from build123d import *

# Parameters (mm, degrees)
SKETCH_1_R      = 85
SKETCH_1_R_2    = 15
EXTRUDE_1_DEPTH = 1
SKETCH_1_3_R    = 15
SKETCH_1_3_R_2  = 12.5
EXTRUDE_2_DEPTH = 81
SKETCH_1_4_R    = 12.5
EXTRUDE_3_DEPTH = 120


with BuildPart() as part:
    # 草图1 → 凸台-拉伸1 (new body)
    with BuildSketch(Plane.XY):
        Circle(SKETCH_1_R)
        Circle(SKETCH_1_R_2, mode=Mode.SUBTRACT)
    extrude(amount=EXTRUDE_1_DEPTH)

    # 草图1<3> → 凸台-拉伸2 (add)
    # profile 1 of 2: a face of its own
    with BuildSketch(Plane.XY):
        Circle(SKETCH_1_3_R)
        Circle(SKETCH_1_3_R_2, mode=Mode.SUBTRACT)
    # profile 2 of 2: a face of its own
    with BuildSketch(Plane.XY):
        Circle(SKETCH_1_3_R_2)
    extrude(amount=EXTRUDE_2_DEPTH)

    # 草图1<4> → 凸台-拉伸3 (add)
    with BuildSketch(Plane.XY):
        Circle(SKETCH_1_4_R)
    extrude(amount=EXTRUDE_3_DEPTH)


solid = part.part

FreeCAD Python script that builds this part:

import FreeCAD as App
import Part
import Sketcher

V = App.Vector
Q = App.Units.Quantity

doc = App.newDocument("Part")
body = doc.addObject("PartDesign::Body", "Body")

# Sketch on XY plane
sketch1 = body.newObject("Sketcher::SketchObject", "Sketch")
sketch1.AttachmentSupport = (doc.getObject("XY_Plane"), [""])
sketch1.MapMode = "FlatFace"
sketch1.addGeometry([
    Part.Circle(V(0, 0, 0), V(0, 0, 1), 85),
    Part.Circle(V(0, 0, 0), V(0, 0, 1), 15),
], False)
sketch1.addConstraint([
    Sketcher.Constraint("Coincident", 0, 3, -1, 1),
    Sketcher.Constraint("Coincident", 1, 3, -1, 1),
    Sketcher.Constraint("Diameter", 0, Q("170 mm")),
    Sketcher.Constraint("Diameter", 1, Q("30 mm")),
])
pad1 = body.newObject("PartDesign::Pad", "Pad")
pad1.Profile = sketch1
pad1.Length = 1

# Sketch on XY plane
sketch2 = body.newObject("Sketcher::SketchObject", "Sketch001")
sketch2.AttachmentSupport = (doc.getObject("XY_Plane"), [""])
sketch2.MapMode = "FlatFace"
sketch2.addGeometry(Part.Circle(V(0, 0, 0), V(0, 0, 1), 15), False)
sketch2.addConstraint([
    Sketcher.Constraint("Coincident", 0, 3, -1, 1),
    Sketcher.Constraint("Diameter", 0, Q("30 mm")),
])
pad2 = body.newObject("PartDesign::Pad", "Pad001")
pad2.Profile = sketch2
pad2.Length = 81

# Sketch on XY plane
sketch3 = body.newObject("Sketcher::SketchObject", "Sketch002")
sketch3.AttachmentSupport = (doc.getObject("XY_Plane"), [""])
sketch3.MapMode = "FlatFace"
sketch3.addGeometry(Part.Circle(V(0, 0, 0), V(0, 0, 1), 12.5), False)
sketch3.addConstraint([
    Sketcher.Constraint("Coincident", 0, 3, -1, 1),
    Sketcher.Constraint("Diameter", 0, Q("25 mm")),
])
pad3 = body.newObject("PartDesign::Pad", "Pad002")
pad3.Profile = sketch3
pad3.Length = 120

doc.recompute()
